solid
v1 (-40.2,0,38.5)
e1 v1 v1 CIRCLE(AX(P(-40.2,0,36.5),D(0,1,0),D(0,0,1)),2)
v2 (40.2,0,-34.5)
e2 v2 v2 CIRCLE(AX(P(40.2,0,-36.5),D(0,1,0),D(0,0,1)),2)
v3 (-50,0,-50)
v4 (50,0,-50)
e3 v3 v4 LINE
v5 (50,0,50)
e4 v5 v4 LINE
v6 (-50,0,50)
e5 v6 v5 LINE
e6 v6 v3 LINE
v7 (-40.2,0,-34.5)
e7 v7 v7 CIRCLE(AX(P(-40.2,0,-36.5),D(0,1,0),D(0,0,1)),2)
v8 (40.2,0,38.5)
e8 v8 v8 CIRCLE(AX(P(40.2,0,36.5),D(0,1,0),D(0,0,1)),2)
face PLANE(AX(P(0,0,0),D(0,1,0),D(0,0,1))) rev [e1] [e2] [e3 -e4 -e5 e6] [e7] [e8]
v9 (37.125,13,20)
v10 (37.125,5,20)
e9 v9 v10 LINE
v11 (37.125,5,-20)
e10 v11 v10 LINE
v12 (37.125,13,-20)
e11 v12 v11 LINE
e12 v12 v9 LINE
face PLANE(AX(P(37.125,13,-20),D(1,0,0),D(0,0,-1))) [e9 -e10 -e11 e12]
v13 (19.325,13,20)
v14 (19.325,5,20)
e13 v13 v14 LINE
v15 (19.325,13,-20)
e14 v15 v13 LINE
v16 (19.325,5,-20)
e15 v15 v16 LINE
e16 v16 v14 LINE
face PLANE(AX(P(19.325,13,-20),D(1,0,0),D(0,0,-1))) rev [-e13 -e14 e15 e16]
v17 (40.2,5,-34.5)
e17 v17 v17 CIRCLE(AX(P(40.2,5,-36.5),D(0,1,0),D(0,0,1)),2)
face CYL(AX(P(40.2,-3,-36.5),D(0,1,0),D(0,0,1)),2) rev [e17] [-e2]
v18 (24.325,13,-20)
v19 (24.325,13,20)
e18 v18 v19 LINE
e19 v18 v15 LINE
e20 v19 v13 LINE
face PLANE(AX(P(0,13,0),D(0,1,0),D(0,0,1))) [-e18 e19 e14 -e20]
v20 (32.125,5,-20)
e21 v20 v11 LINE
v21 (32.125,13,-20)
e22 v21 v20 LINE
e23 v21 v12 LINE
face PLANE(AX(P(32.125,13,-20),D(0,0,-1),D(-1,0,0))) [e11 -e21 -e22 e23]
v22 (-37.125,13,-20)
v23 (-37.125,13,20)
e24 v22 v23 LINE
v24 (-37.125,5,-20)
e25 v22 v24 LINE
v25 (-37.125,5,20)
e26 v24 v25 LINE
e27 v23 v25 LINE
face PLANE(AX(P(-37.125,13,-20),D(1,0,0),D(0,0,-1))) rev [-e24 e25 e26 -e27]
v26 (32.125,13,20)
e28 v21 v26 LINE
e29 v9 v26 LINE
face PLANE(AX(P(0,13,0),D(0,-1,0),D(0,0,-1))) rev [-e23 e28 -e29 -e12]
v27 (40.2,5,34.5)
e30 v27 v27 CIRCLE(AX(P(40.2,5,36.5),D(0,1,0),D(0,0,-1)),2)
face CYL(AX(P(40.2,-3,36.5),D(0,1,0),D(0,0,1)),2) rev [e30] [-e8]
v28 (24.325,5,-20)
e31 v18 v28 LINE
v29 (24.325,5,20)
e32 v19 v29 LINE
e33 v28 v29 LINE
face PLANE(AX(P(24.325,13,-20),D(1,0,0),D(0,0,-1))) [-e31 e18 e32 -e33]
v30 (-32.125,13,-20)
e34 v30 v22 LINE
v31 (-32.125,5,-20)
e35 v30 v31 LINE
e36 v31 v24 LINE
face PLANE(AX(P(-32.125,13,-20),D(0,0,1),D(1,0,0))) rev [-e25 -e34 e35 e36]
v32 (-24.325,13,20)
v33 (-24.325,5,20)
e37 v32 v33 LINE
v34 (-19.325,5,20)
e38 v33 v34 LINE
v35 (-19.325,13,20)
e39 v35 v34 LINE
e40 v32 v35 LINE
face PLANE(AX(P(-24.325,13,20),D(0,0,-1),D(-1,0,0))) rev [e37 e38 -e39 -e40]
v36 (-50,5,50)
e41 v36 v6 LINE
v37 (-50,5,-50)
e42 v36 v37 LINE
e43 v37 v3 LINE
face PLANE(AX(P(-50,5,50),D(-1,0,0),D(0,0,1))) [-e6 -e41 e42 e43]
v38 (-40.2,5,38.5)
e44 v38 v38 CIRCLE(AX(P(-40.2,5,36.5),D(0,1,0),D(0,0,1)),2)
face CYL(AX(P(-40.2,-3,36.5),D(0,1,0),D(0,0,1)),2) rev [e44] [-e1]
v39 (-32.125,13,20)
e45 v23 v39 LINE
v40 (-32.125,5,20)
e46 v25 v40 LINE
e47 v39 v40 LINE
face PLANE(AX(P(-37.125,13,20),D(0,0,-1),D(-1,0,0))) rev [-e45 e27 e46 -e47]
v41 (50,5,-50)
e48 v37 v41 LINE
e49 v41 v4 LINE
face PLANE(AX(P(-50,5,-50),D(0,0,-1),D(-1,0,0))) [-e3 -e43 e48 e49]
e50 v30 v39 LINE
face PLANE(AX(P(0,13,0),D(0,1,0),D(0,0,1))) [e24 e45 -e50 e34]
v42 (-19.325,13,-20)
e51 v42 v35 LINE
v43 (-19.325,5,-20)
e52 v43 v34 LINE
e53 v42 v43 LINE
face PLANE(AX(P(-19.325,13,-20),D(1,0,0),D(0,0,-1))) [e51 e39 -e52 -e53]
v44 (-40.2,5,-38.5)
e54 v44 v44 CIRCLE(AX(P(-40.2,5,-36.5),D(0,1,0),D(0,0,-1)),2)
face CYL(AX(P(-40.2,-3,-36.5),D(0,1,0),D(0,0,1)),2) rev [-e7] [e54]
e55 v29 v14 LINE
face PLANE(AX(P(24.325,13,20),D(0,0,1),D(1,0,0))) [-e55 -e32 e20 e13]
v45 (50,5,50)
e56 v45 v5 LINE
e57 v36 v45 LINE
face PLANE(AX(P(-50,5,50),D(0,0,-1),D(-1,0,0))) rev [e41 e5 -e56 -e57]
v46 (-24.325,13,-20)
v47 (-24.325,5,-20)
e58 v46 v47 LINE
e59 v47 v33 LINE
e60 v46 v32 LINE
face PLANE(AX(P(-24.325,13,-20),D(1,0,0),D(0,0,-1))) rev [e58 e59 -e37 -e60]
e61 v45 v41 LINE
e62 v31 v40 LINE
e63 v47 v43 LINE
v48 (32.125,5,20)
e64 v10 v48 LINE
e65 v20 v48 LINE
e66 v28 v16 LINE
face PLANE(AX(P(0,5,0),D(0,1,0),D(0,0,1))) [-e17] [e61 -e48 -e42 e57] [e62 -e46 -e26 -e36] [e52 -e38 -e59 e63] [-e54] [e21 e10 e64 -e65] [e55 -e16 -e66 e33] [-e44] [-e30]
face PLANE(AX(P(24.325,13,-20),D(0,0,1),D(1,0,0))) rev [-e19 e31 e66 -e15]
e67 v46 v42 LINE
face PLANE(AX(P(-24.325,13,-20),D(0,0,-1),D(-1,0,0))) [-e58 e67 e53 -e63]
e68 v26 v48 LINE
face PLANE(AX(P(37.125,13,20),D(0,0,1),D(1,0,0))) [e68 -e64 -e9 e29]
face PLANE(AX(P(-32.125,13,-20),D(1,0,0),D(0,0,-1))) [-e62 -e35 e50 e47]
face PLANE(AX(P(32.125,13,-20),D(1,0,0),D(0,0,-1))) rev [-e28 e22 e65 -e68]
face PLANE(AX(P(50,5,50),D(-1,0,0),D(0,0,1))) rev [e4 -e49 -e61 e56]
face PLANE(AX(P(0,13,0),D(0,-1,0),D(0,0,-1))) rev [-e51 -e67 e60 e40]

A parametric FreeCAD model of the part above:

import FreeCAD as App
import Part
import Sketcher

V = App.Vector
Q = App.Units.Quantity


def add_polygon(sketch, points):
    """Adds a closed chain of lines whose ends are joined by coincident constraints."""
    first, n = sketch.GeometryCount, len(points)
    for a, b in zip(points, points[1:] + points[:1]):
        sketch.addGeometry(Part.LineSegment(App.Vector(*a, 0), App.Vector(*b, 0)), False)
    for i in range(n):
        sketch.addConstraint(Sketcher.Constraint("Coincident", first + i, 2, first + (i + 1) % n, 1))

doc = App.newDocument("Part")
body = doc.addObject("PartDesign::Body", "Body")

# Sketch on XZ plane
sketch1 = body.newObject("Sketcher::SketchObject", "Sketch")
sketch1.AttachmentSupport = (doc.getObject("XZ_Plane"), [""])
sketch1.MapMode = "FlatFace"
add_polygon(sketch1, [(-50, -50), (-50, 50), (50, 50), (50, -50)])  # lines 0-3
sketch1.addConstraint([
    Sketcher.Constraint("Vertical", 0),
    Sketcher.Constraint("Horizontal", 1),
    Sketcher.Constraint("Vertical", 2),
    Sketcher.Constraint("Horizontal", 3),
    Sketcher.Constraint("Symmetric", 0, 2, 2, 2, -1, 1),
    Sketcher.Constraint("Equal", 3, 0),
    Sketcher.Constraint("DistanceX", 1, 1, 1, 2, Q("100 mm")),
])
pad1 = body.newObject("PartDesign::Pad", "Pad")
pad1.Profile = sketch1
pad1.Length = 5
pad1.Reversed = True

# Sketch on XZ plane
sketch2 = body.newObject("Sketcher::SketchObject", "Sketch001")
sketch2.AttachmentSupport = (doc.getObject("XZ_Plane"), [""])
sketch2.MapMode = "FlatFace"
sketch2.AttachmentOffset = App.Placement(V(0, 0, -5), App.Rotation())
add_polygon(sketch2, [(19.325, -20), (19.325, 20), (24.325, 20), (24.325, -20)])  # lines 0-3
add_polygon(sketch2, [(-37.125, -20), (-37.125, 20), (-32.125, 20), (-32.125, -20)])  # lines 4-7
add_polygon(sketch2, [(-24.325, -20), (-24.325, 20), (-19.325, 20), (-19.325, -20)])  # lines 8-11
add_polygon(sketch2, [(32.125, -20), (32.125, 20), (37.125, 20), (37.125, -20)])  # lines 12-15
sketch2.addConstraint([
    Sketcher.Constraint("Vertical", 0),
    Sketcher.Constraint("Horizontal", 1),
    Sketcher.Constraint("Vertical", 2),
    Sketcher.Constraint("Horizontal", 3),
    Sketcher.Constraint("Vertical", 4),
    Sketcher.Constraint("Horizontal", 5),
    Sketcher.Constraint("Vertical", 6),
    Sketcher.Constraint("Horizontal", 7),
    Sketcher.Constraint("Vertical", 8),
    Sketcher.Constraint("Horizontal", 9),
    Sketcher.Constraint("Vertical", 10),
    Sketcher.Constraint("Horizontal", 11),
    Sketcher.Constraint("Vertical", 12),
    Sketcher.Constraint("Horizontal", 13),
    Sketcher.Constraint("Vertical", 14),
    Sketcher.Constraint("Horizontal", 15),
    Sketcher.Constraint("Symmetric", 2, 2, 8, 2, -1, 1),
    Sketcher.Constraint("Symmetric", 0, 2, 10, 2, -1, 1),
    Sketcher.Constraint("Symmetric", 6, 2, 12, 2, -1, 1),
    Sketcher.Constraint("Symmetric", 4, 2, 14, 2, -1, 1),
    Sketcher.Constraint("Horizontal", 1, 2, 4, 2),
    Sketcher.Constraint("Horizontal", 3, 2, 6, 2),
    Sketcher.Constraint("Horizontal", 5, 2, 8, 2),
    Sketcher.Constraint("Equal", 3, 5),
    Sketcher.Constraint("DistanceX", 1, 1, 1, 2, Q("5 mm")),
    Sketcher.Constraint("DistanceY", 0, 1, 0, 2, Q("40 mm")),
    Sketcher.Constraint("DistanceX", 5, 2, 8, 2, Q("7.8 mm")),
    Sketcher.Constraint("DistanceX", 4, 2, 0, 2, Q("56.45 mm")),
])
pad2 = body.newObject("PartDesign::Pad", "Pad001")
pad2.Profile = sketch2
pad2.Length = 8
pad2.Reversed = True

# Sketch on XZ plane
sketch3 = body.newObject("Sketcher::SketchObject", "Sketch002")
sketch3.AttachmentSupport = (doc.getObject("XZ_Plane"), [""])
sketch3.MapMode = "FlatFace"
sketch3.AttachmentOffset = App.Placement(V(0, 0, -5), App.Rotation())
sketch3.addGeometry([
    Part.Circle(V(40.2, -36.5, 0), V(0, 0, 1), 2),
    Part.Circle(V(40.2, 36.5, 0), V(0, 0, 1), 2),
    Part.Circle(V(-40.2, 36.5, 0), V(0, 0, 1), 2),
    Part.Circle(V(-40.2, -36.5, 0), V(0, 0, 1), 2),
], False)
sketch3.addConstraint([
    Sketcher.Constraint("Equal", 0, 1),
    Sketcher.Constraint("Equal", 1, 2),
    Sketcher.Constraint("Equal", 2, 3),
    Sketcher.Constraint("Symmetric", 0, 3, 2, 3, -1, 1),
    Sketcher.Constraint("Symmetric", 1, 3, 3, 3, -1, 1),
    Sketcher.Constraint("Symmetric", 1, 3, 2, 3, -2),
    Sketcher.Constraint("Diameter", 0, Q("4 mm")),
    Sketcher.Constraint("DistanceY", 0, 3, 1, 3, Q("73 mm")),
    Sketcher.Constraint("DistanceX", -1, 1, 0, 3, Q("40.2 mm")),
])
pocket1 = body.newObject("PartDesign::Pocket", "Pocket")
pocket1.Profile = sketch3
pocket1.Length = 8
pocket1.Reversed = True

doc.recompute()
